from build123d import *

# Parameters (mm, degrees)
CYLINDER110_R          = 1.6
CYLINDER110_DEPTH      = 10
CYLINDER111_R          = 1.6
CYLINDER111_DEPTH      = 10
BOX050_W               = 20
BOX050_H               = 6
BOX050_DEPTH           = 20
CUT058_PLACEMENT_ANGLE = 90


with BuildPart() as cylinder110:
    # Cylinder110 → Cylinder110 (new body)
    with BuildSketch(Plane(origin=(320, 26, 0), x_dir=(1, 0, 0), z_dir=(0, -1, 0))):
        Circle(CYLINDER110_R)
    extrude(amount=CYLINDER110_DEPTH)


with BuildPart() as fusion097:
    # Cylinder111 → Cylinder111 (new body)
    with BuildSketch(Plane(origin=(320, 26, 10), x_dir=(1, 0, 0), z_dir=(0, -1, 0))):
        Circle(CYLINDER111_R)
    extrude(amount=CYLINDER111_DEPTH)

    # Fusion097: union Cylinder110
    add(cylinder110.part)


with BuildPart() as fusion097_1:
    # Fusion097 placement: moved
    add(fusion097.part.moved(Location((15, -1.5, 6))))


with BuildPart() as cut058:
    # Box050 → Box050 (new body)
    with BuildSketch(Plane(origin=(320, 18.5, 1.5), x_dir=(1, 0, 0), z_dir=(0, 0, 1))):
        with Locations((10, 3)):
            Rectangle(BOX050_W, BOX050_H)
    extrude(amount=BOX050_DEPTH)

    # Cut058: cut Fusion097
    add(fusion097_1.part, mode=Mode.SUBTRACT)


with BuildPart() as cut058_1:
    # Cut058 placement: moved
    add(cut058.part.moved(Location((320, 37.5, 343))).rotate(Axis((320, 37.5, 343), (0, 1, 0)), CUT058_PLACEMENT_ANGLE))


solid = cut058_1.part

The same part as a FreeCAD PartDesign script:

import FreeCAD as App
import Part
import Sketcher

V = App.Vector

doc = App.newDocument("Part")
body = doc.addObject("PartDesign::Body", "Body")

# Sketch on XZ plane
sketch1 = body.newObject("Sketcher::SketchObject", "Sketch")
sketch1.AttachmentSupport = (doc.getObject("XZ_Plane"), [""])
sketch1.MapMode = "FlatFace"
sketch1.AttachmentOffset = App.Placement(V(0, 0, -26), App.Rotation())
sketch1.addGeometry(Part.Circle(V(320, 0, 0), V(0, 0, 1), 1.6), False)
sketch1.addConstraint([
    Sketcher.Constraint("PointOnObject", 0, 3, -1),
    Sketcher.Constraint("Diameter", 0, 3.2),
    Sketcher.Constraint("DistanceX", -1, 1, 0, 3, 320.0),
])
pad1 = body.newObject("PartDesign::Pad", "Pad")
pad1.Profile = sketch1
pad1.Length = 10
body2 = doc.addObject("PartDesign::Body", "Body001")
body2.AllowCompound = True

# Sketch on XZ plane
sketch2 = body2.newObject("Sketcher::SketchObject", "Sketch001")
sketch2.AttachmentSupport = (doc.getObject("XZ_Plane001"), [""])
sketch2.MapMode = "FlatFace"
sketch2.AttachmentOffset = App.Placement(V(0, 0, -26), App.Rotation())
sketch2.addGeometry(Part.Circle(V(320, 10, 0), V(0, 0, 1), 1.6), False)
sketch2.addConstraint([
    Sketcher.Constraint("Diameter", 0, 3.2),
    Sketcher.Constraint("DistanceX", -1, 1, 0, 3, 320.0),
    Sketcher.Constraint("DistanceY", -1, 1, 0, 3, 10.0),
])
pad2 = body2.newObject("PartDesign::Pad", "Pad001")
pad2.Profile = sketch2
pad2.Length = 10
doc.recompute()

boolean = body2.newObject("PartDesign::Boolean", "Boolean")
boolean.Type = "Fuse"
boolean.addObjects([body])
body3 = doc.addObject("PartDesign::Body", "Body002")
body3.AllowCompound = True
doc.recompute()

body2.Placement = App.Placement(V(15, -1.5, 6), App.Rotation(V(0, 0, 1), 0))
boolean2 = body3.newObject("PartDesign::Boolean", "Boolean001")
boolean2.Type = "Fuse"
boolean2.addObjects([body2])
body4 = doc.addObject("PartDesign::Body", "Body003")

# Sketch on XY plane
sketch3 = body4.newObject("Sketcher::SketchObject", "Sketch002")
sketch3.AttachmentSupport = (doc.getObject("XY_Plane003"), [""])
sketch3.MapMode = "FlatFace"
sketch3.AttachmentOffset = App.Placement(V(0, 0, 1.5), App.Rotation())
sketch3.addGeometry([
    Part.LineSegment(V(320, 24, 0), V(320, 18, 0)),
    Part.LineSegment(V(320, 18, 0), V(340, 18, 0)),
    Part.LineSegment(V(340, 18, 0), V(340, 24, 0)),
    Part.LineSegment(V(340, 24, 0), V(320, 24, 0)),
], False)
sketch3.addConstraint([
    Sketcher.Constraint("Coincident", 0, 2, 1, 1),
    Sketcher.Constraint("Coincident", 1, 2, 2, 1),
    Sketcher.Constraint("Coincident", 2, 2, 3, 1),
    Sketcher.Constraint("Coincident", 3, 2, 0, 1),
    Sketcher.Constraint("Vertical", 0),
    Sketcher.Constraint("Horizontal", 1),
    Sketcher.Constraint("Vertical", 2),
    Sketcher.Constraint("Horizontal", 3),
    Sketcher.Constraint("DistanceX", 1, 1, 1, 2, 20.0),
    Sketcher.Constraint("DistanceY", 0, 2, 0, 1, 6.0),
    Sketcher.Constraint("DistanceX", -1, 1, 0, 2, 320.0),
    Sketcher.Constraint("DistanceY", -1, 1, 0, 2, 18.5),
])
pad3 = body4.newObject("PartDesign::Pad", "Pad002")
pad3.Profile = sketch3
pad3.Length = 20
doc.recompute()

boolean3 = body4.newObject("PartDesign::Boolean", "Boolean002")
boolean3.Type = "Cut"
boolean3.addObjects([body3])
body5 = doc.addObject("PartDesign::Body", "Body004")
doc.recompute()

body4.Placement = App.Placement(V(320, 37.5, 343), App.Rotation(V(0, 1, 0), 90))
boolean4 = body5.newObject("PartDesign::Boolean", "Boolean003")
boolean4.Type = "Fuse"
boolean4.addObjects([body4])

doc.recompute()
